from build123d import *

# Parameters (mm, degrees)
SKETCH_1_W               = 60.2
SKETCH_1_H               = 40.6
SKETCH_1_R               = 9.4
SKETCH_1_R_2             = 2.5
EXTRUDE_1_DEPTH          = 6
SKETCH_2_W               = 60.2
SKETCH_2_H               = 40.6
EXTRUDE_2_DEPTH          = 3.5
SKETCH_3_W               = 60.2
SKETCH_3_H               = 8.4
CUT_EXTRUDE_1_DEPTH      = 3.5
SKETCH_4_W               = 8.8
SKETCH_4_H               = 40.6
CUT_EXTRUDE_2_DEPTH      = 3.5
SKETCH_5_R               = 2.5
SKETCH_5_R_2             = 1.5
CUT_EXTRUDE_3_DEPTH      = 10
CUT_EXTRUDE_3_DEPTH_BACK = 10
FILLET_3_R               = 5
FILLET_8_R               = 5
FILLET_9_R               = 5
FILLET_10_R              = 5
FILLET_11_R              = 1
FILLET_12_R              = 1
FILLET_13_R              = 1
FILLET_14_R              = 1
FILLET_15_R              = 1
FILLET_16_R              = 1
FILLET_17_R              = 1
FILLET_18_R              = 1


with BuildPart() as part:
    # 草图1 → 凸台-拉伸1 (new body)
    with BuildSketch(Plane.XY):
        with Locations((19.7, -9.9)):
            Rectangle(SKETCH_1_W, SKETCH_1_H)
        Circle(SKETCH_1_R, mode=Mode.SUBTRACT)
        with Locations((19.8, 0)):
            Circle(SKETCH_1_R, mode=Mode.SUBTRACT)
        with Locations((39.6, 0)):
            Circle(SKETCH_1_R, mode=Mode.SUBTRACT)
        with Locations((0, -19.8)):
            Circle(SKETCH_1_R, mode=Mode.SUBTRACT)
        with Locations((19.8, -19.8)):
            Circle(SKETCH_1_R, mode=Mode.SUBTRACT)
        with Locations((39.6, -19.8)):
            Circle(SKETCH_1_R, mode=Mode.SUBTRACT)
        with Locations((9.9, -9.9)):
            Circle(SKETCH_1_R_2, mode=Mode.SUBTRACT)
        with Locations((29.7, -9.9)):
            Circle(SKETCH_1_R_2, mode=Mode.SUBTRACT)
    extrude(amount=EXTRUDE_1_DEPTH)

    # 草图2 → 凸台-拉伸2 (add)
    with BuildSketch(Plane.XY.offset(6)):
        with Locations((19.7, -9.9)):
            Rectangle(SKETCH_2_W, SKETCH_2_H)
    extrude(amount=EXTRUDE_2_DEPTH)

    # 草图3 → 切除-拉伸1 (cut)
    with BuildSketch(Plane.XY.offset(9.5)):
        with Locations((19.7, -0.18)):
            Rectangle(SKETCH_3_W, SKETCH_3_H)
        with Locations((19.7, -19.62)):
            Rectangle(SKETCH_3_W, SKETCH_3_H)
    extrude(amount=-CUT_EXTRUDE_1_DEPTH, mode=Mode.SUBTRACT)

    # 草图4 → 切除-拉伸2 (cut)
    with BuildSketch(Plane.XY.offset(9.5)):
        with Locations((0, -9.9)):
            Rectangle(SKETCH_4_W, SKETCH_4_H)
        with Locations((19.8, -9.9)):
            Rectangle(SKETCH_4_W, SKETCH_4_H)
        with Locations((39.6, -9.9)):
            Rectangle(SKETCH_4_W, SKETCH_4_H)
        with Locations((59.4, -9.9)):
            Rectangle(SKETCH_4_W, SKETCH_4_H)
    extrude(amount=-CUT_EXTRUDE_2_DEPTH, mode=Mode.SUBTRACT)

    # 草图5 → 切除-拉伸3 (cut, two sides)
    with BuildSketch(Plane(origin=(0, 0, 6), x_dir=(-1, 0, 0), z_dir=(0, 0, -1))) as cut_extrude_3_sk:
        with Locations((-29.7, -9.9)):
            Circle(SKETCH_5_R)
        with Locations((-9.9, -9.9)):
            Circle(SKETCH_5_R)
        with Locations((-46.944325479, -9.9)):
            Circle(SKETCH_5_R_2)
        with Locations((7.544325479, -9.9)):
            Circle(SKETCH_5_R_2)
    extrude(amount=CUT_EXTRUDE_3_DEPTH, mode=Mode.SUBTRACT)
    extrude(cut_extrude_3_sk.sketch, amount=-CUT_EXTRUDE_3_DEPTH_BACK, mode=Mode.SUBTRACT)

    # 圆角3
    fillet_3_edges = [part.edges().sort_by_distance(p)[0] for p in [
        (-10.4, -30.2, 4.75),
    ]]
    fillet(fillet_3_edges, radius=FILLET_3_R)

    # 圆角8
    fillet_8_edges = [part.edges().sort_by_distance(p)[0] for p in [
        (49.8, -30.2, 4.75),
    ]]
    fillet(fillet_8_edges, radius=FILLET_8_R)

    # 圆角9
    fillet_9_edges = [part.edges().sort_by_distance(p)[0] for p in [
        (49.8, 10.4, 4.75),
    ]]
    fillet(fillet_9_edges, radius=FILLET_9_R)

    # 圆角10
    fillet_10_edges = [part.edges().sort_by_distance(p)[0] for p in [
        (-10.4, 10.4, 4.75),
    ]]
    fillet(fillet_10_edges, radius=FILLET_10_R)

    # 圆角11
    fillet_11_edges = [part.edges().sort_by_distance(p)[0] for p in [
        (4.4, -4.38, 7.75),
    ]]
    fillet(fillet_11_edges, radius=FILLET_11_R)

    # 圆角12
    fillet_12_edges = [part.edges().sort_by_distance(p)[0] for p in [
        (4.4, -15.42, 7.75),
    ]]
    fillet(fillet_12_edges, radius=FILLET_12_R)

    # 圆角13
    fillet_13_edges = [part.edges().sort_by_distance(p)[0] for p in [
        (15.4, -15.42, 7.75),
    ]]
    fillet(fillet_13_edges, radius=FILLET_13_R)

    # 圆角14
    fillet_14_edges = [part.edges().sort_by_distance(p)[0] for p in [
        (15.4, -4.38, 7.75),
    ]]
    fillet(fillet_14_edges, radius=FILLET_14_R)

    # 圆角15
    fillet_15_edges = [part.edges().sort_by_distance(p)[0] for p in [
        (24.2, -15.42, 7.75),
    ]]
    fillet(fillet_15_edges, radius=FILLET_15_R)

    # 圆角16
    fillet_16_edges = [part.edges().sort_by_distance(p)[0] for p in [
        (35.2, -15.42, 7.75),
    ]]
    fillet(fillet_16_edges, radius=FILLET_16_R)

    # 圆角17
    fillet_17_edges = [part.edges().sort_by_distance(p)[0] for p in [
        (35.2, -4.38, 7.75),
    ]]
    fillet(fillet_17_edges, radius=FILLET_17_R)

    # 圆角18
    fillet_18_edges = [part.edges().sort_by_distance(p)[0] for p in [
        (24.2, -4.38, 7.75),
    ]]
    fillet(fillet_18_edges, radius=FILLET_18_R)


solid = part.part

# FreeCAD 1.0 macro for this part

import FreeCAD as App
import Part
import Sketcher

V = App.Vector


def edges_at(feature, points):
    """Names of the edges that pass closest to the given points."""
    edges = feature.Shape.Edges
    near = lambda p: min(range(len(edges)), key=lambda i: edges[i].distToShape(Part.Vertex(*p))[0])
    return sorted({f"Edge{near(p) + 1}" for p in points})

doc = App.newDocument("Part")
body = doc.addObject("PartDesign::Body", "Body")

# Sketch on XY plane
sketch1 = body.newObject("Sketcher::SketchObject", "Sketch")
sketch1.AttachmentSupport = (doc.getObject("XY_Plane"), [""])
sketch1.MapMode = "FlatFace"
sketch1.addGeometry(Part.LineSegment(V(-10.4, 10.4, 0), V(-10.4, -30.2, 0)), False)
sketch1.addGeometry(Part.LineSegment(V(-10.4, -30.2, 0), V(49.8, -30.2, 0)), False)
sketch1.addGeometry(Part.LineSegment(V(49.8, -30.2, 0), V(49.8, 10.4, 0)), False)
sketch1.addGeometry(Part.LineSegment(V(49.8, 10.4, 0), V(-10.4, 10.4, 0)), False)
sketch1.addGeometry(Part.Circle(V(0, -19.8, 0), V(0, 0, 1), 9.4), False)
sketch1.addGeometry(Part.Circle(V(19.8, -19.8, 0), V(0, 0, 1), 9.4), False)
sketch1.addGeometry(Part.Circle(V(39.6, -19.8, 0), V(0, 0, 1), 9.4), False)
sketch1.addGeometry(Part.Circle(V(9.9, -9.9, 0), V(0, 0, 1), 2.5), False)
sketch1.addGeometry(Part.Circle(V(0, 0, 0), V(0, 0, 1), 9.4), False)
sketch1.addGeometry(Part.Circle(V(29.7, -9.9, 0), V(0, 0, 1), 2.5), False)
sketch1.addGeometry(Part.Circle(V(19.8, 0, 0), V(0, 0, 1), 9.4), False)
sketch1.addGeometry(Part.Circle(V(39.6, 0, 0), V(0, 0, 1), 9.4), False)
sketch1.addConstraint(Sketcher.Constraint("Coincident", 0, 2, 1, 1))
sketch1.addConstraint(Sketcher.Constraint("Coincident", 1, 2, 2, 1))
sketch1.addConstraint(Sketcher.Constraint("Coincident", 2, 2, 3, 1))
sketch1.addConstraint(Sketcher.Constraint("Coincident", 3, 2, 0, 1))
sketch1.addConstraint(Sketcher.Constraint("Vertical", 0))
sketch1.addConstraint(Sketcher.Constraint("Horizontal", 1))
sketch1.addConstraint(Sketcher.Constraint("Vertical", 2))
sketch1.addConstraint(Sketcher.Constraint("Horizontal", 3))
sketch1.addConstraint(Sketcher.Constraint("Coincident", 8, 3, -1, 1))
sketch1.addConstraint(Sketcher.Constraint("Equal", 4, 5))
sketch1.addConstraint(Sketcher.Constraint("Equal", 5, 6))
sketch1.addConstraint(Sketcher.Constraint("Equal", 6, 8))
sketch1.addConstraint(Sketcher.Constraint("Equal", 7, 9))
sketch1.addConstraint(Sketcher.Constraint("Equal", 8, 10))
sketch1.addConstraint(Sketcher.Constraint("Equal", 10, 11))
sketch1.addConstraint(Sketcher.Constraint("PointOnObject", 4, 3, -2))
sketch1.addConstraint(Sketcher.Constraint("PointOnObject", 10, 3, -1))
sketch1.addConstraint(Sketcher.Constraint("PointOnObject", 11, 3, -1))
sketch1.addConstraint(Sketcher.Constraint("Horizontal", 4, 3, 5, 3))
sketch1.addConstraint(Sketcher.Constraint("Horizontal", 5, 3, 6, 3))
sketch1.addConstraint(Sketcher.Constraint("Horizontal", 7, 3, 9, 3))
sketch1.addConstraint(Sketcher.Constraint("Vertical", 5, 3, 10, 3))
sketch1.addConstraint(Sketcher.Constraint("Vertical", 6, 3, 11, 3))
sketch1.addConstraint(Sketcher.Constraint("Diameter", 7, 5.0))
sketch1.addConstraint(Sketcher.Constraint("Diameter", 4, 18.8))
sketch1.addConstraint(Sketcher.Constraint("DistanceX", 1, 1, 1, 2, 60.2))
sketch1.addConstraint(Sketcher.Constraint("DistanceY", 0, 2, 0, 1, 40.6))
sketch1.addConstraint(Sketcher.Constraint("DistanceX", 5, 3, 1, 2, 30.0))
sketch1.addConstraint(Sketcher.Constraint("DistanceY", 4, 3, -1, 1, 19.8))
sketch1.addConstraint(Sketcher.Constraint("DistanceX", -1, 1, 5, 3, 19.8))
sketch1.addConstraint(Sketcher.Constraint("DistanceX", -1, 1, 6, 3, 39.6))
sketch1.addConstraint(Sketcher.Constraint("DistanceX", -1, 1, 7, 3, 9.9))
sketch1.addConstraint(Sketcher.Constraint("DistanceY", 7, 3, -1, 1, 9.9))
sketch1.addConstraint(Sketcher.Constraint("DistanceX", -1, 1, 9, 3, 29.7))
sketch1.addConstraint(Sketcher.Constraint("DistanceY", 0, 2, -1, 1, 30.2))
pad1 = body.newObject("PartDesign::Pad", "Pad")
pad1.Profile = sketch1
pad1.Length = 6

# Sketch on XY plane
sketch2 = body.newObject("Sketcher::SketchObject", "Sketch001")
sketch2.AttachmentSupport = (doc.getObject("XY_Plane"), [""])
sketch2.MapMode = "FlatFace"
sketch2.AttachmentOffset = App.Placement(V(0, 0, 6), App.Rotation())
sketch2.addGeometry(Part.LineSegment(V(-10, 10, 0), V(-10, -30, 0)), False)
sketch2.addGeometry(Part.LineSegment(V(-10, -30, 0), V(50, -30, 0)), False)
sketch2.addGeometry(Part.LineSegment(V(50, -30, 0), V(50, 10, 0)), False)
sketch2.addGeometry(Part.LineSegment(V(50, 10, 0), V(-10, 10, 0)), False)
sketch2.addConstraint(Sketcher.Constraint("Coincident", 0, 2, 1, 1))
sketch2.addConstraint(Sketcher.Constraint("Coincident", 1, 2, 2, 1))
sketch2.addConstraint(Sketcher.Constraint("Coincident", 2, 2, 3, 1))
sketch2.addConstraint(Sketcher.Constraint("Coincident", 3, 2, 0, 1))
sketch2.addConstraint(Sketcher.Constraint("Vertical", 0))
sketch2.addConstraint(Sketcher.Constraint("Horizontal", 1))
sketch2.addConstraint(Sketcher.Constraint("Vertical", 2))
sketch2.addConstraint(Sketcher.Constraint("Horizontal", 3))
sketch2.addConstraint(Sketcher.Constraint("DistanceX", 1, 1, 1, 2, 60.2))
sketch2.addConstraint(Sketcher.Constraint("DistanceY", 0, 2, 0, 1, 40.6))
sketch2.addConstraint(Sketcher.Constraint("DistanceX", 0, 2, -1, 1, 10.4))
sketch2.addConstraint(Sketcher.Constraint("DistanceY", 0, 2, -1, 1, 30.2))
pad2 = body.newObject("PartDesign::Pad", "Pad001")
pad2.Profile = sketch2
pad2.Length = 3.5

# Sketch on XY plane
sketch3 = body.newObject("Sketcher::SketchObject", "Sketch002")
sketch3.AttachmentSupport = (doc.getObject("XY_Plane"), [""])
sketch3.MapMode = "FlatFace"
sketch3.AttachmentOffset = App.Placement(V(0, 0, 9.5), App.Rotation())
sketch3.addGeometry(Part.LineSegment(V(-10, 4, 0), V(-10, -4, 0)), False)
sketch3.addGeometry(Part.LineSegment(V(-10, -4, 0), V(50, -4, 0)), False)
sketch3.addGeometry(Part.LineSegment(V(50, -4, 0), V(50, 4, 0)), False)
sketch3.addGeometry(Part.LineSegment(V(50, 4, 0), V(-10, 4, 0)), False)
sketch3.addGeometry(Part.LineSegment(V(-10, -15, 0), V(-10, -24, 0)), False)
sketch3.addGeometry(Part.LineSegment(V(-10, -24, 0), V(50, -24, 0)), False)
sketch3.addGeometry(Part.LineSegment(V(50, -24, 0), V(50, -15, 0)), False)
sketch3.addGeometry(Part.LineSegment(V(50, -15, 0), V(-10, -15, 0)), False)
sketch3.addConstraint(Sketcher.Constraint("Coincident", 0, 2, 1, 1))
sketch3.addConstraint(Sketcher.Constraint("Coincident", 1, 2, 2, 1))
sketch3.addConstraint(Sketcher.Constraint("Coincident", 2, 2, 3, 1))
sketch3.addConstraint(Sketcher.Constraint("Coincident", 3, 2, 0, 1))
sketch3.addConstraint(Sketcher.Constraint("Coincident", 4, 2, 5, 1))
sketch3.addConstraint(Sketcher.Constraint("Coincident", 5, 2, 6, 1))
sketch3.addConstraint(Sketcher.Constraint("Coincident", 6, 2, 7, 1))
sketch3.addConstraint(Sketcher.Constraint("Coincident", 7, 2, 4, 1))
sketch3.addConstraint(Sketcher.Constraint("Vertical", 0))
sketch3.addConstraint(Sketcher.Constraint("Horizontal", 1))
sketch3.addConstraint(Sketcher.Constraint("Vertical", 2))
sketch3.addConstraint(Sketcher.Constraint("Horizontal", 3))
sketch3.addConstraint(Sketcher.Constraint("Vertical", 4))
sketch3.addConstraint(Sketcher.Constraint("Horizontal", 5))
sketch3.addConstraint(Sketcher.Constraint("Vertical", 6))
sketch3.addConstraint(Sketcher.Constraint("Horizontal", 7))
sketch3.addConstraint(Sketcher.Constraint("Vertical", 3, 2, 4, 2))
sketch3.addConstraint(Sketcher.Constraint("Vertical", 2, 2, 5, 2))
sketch3.addConstraint(Sketcher.Constraint("Equal", 2, 4))
sketch3.addConstraint(Sketcher.Constraint("DistanceX", 1, 1, 1, 2, 60.2))
sketch3.addConstraint(Sketcher.Constraint("DistanceY", 0, 2, 0, 1, 8.4))
sketch3.addConstraint(Sketcher.Constraint("DistanceX", 0, 2, -1, 1, 10.4))
sketch3.addConstraint(Sketcher.Constraint("DistanceY", 0, 2, -1, 1, 4.38))
sketch3.addConstraint(Sketcher.Constraint("DistanceY", 4, 2, -1, 1, 23.82))
pocket1 = body.newObject("PartDesign::Pocket", "Pocket")
pocket1.Profile = sketch3
pocket1.Length = 3.5

# Sketch on XY plane
sketch4 = body.newObject("Sketcher::SketchObject", "Sketch003")
sketch4.AttachmentSupport = (doc.getObject("XY_Plane"), [""])
sketch4.MapMode = "FlatFace"
sketch4.AttachmentOffset = App.Placement(V(0, 0, 9.5), App.Rotation())
sketch4.addGeometry(Part.LineSegment(V(-4, 10, 0), V(-4, -30, 0)), False)
sketch4.addGeometry(Part.LineSegment(V(-4, -30, 0), V(4, -30, 0)), False)
sketch4.addGeometry(Part.LineSegment(V(4, -30, 0), V(4, 10, 0)), False)
sketch4.addGeometry(Part.LineSegment(V(4, 10, 0), V(-4, 10, 0)), False)
sketch4.addGeometry(Part.LineSegment(V(15, 10, 0), V(15, -30, 0)), False)
sketch4.addGeometry(Part.LineSegment(V(15, -30, 0), V(24, -30, 0)), False)
sketch4.addGeometry(Part.LineSegment(V(24, -30, 0), V(24, 10, 0)), False)
sketch4.addGeometry(Part.LineSegment(V(24, 10, 0), V(15, 10, 0)), False)
sketch4.addGeometry(Part.LineSegment(V(35, 10, 0), V(35, -30, 0)), False)
sketch4.addGeometry(Part.LineSegment(V(35, -30, 0), V(44, -30, 0)), False)
sketch4.addGeometry(Part.LineSegment(V(44, -30, 0), V(44, 10, 0)), False)
sketch4.addGeometry(Part.LineSegment(V(44, 10, 0), V(35, 10, 0)), False)
sketch4.addGeometry(Part.LineSegment(V(55, 10, 0), V(55, -30, 0)), False)
sketch4.addGeometry(Part.LineSegment(V(55, -30, 0), V(64, -30, 0)), False)
sketch4.addGeometry(Part.LineSegment(V(64, -30, 0), V(64, 10, 0)), False)
sketch4.addGeometry(Part.LineSegment(V(64, 10, 0), V(55, 10, 0)), False)
sketch4.addConstraint(Sketcher.Constraint("Coincident", 0, 2, 1, 1))
sketch4.addConstraint(Sketcher.Constraint("Coincident", 1, 2, 2, 1))
sketch4.addConstraint(Sketcher.Constraint("Coincident", 2, 2, 3, 1))
sketch4.addConstraint(Sketcher.Constraint("Coincident", 3, 2, 0, 1))
sketch4.addConstraint(Sketcher.Constraint("Coincident", 4, 2, 5, 1))
sketch4.addConstraint(Sketcher.Constraint("Coincident", 5, 2, 6, 1))
sketch4.addConstraint(Sketcher.Constraint("Coincident", 6, 2, 7, 1))
sketch4.addConstraint(Sketcher.Constraint("Coincident", 7, 2, 4, 1))
sketch4.addConstraint(Sketcher.Constraint("Coincident", 8, 2, 9, 1))
sketch4.addConstraint(Sketcher.Constraint("Coincident", 9, 2, 10, 1))
sketch4.addConstraint(Sketcher.Constraint("Coincident", 10, 2, 11, 1))
sketch4.addConstraint(Sketcher.Constraint("Coincident", 11, 2, 8, 1))
sketch4.addConstraint(Sketcher.Constraint("Coincident", 12, 2, 13, 1))
sketch4.addConstraint(Sketcher.Constraint("Coincident", 13, 2, 14, 1))
sketch4.addConstraint(Sketcher.Constraint("Coincident", 14, 2, 15, 1))
sketch4.addConstraint(Sketcher.Constraint("Coincident", 15, 2, 12, 1))
sketch4.addConstraint(Sketcher.Constraint("Vertical", 0))
sketch4.addConstraint(Sketcher.Constraint("Horizontal", 1))
sketch4.addConstraint(Sketcher.Constraint("Vertical", 2))
sketch4.addConstraint(Sketcher.Constraint("Horizontal", 3))
sketch4.addConstraint(Sketcher.Constraint("Vertical", 4))
sketch4.addConstraint(Sketcher.Constraint("Horizontal", 5))
sketch4.addConstraint(Sketcher.Constraint("Vertical", 6))
sketch4.addConstraint(Sketcher.Constraint("Horizontal", 7))
sketch4.addConstraint(Sketcher.Constraint("Vertical", 8))
sketch4.addConstraint(Sketcher.Constraint("Horizontal", 9))
sketch4.addConstraint(Sketcher.Constraint("Vertical", 10))
sketch4.addConstraint(Sketcher.Constraint("Horizontal", 11))
sketch4.addConstraint(Sketcher.Constraint("Vertical", 12))
sketch4.addConstraint(Sketcher.Constraint("Horizontal", 13))
sketch4.addConstraint(Sketcher.Constraint("Vertical", 14))
sketch4.addConstraint(Sketcher.Constraint("Horizontal", 15))
sketch4.addConstraint(Sketcher.Constraint("Horizontal", 1, 2, 4, 2))
sketch4.addConstraint(Sketcher.Constraint("Horizontal", 3, 2, 6, 2))
sketch4.addConstraint(Sketcher.Constraint("Horizontal", 5, 2, 8, 2))
sketch4.addConstraint(Sketcher.Constraint("Horizontal", 7, 2, 10, 2))
sketch4.addConstraint(Sketcher.Constraint("Horizontal", 9, 2, 12, 2))
sketch4.addConstraint(Sketcher.Constraint("Horizontal", 11, 2, 14, 2))
sketch4.addConstraint(Sketcher.Constraint("Equal", 3, 5))
sketch4.addConstraint(Sketcher.Constraint("Equal", 7, 9))
sketch4.addConstraint(Sketcher.Constraint("Equal", 11, 13))
sketch4.addConstraint(Sketcher.Constraint("DistanceX", 1, 1, 1, 2, 8.8))
sketch4.addConstraint(Sketcher.Constraint("DistanceY", 0, 2, 0, 1, 40.6))
sketch4.addConstraint(Sketcher.Constraint("DistanceX", -1, 1, 9, 2, 44.0))
sketch4.addConstraint(Sketcher.Constraint("DistanceX", -1, 1, 12, 2, 55.0))
sketch4.addConstraint(Sketcher.Constraint("DistanceX", 1, 2, 4, 2, 11.0))
sketch4.addConstraint(Sketcher.Constraint("DistanceX", 5, 2, 8, 2, 11.0))
sketch4.addConstraint(Sketcher.Constraint("DistanceY", 0, 2, -1, 1, 30.2))
pocket2 = body.newObject("PartDesign::Pocket", "Pocket001")
pocket2.Profile = sketch4
pocket2.Length = 3.5

# Sketch on XY plane
sketch5 = body.newObject("Sketcher::SketchObject", "Sketch004")
sketch5.AttachmentSupport = (doc.getObject("XY_Plane"), [""])
sketch5.MapMode = "FlatFace"
sketch5.AttachmentOffset = App.Placement(V(0, 0, 6), App.Rotation())
sketch5.addGeometry(Part.Circle(V(29.7, -9.9, 0), V(0, 0, 1), 2.5), False)
sketch5.addGeometry(Part.Circle(V(9.9, -9.9, 0), V(0, 0, 1), 2.5), False)
sketch5.addGeometry(Part.Circle(V(46.9, -9.9, 0), V(0, 0, 1), 1.5), False)
sketch5.addGeometry(Part.Circle(V(-7.5, -9.9, 0), V(0, 0, 1), 1.5), False)
sketch5.addConstraint(Sketcher.Constraint("Equal", 0, 1))
sketch5.addConstraint(Sketcher.Constraint("Equal", 2, 3))
sketch5.addConstraint(Sketcher.Constraint("Horizontal", 0, 3, 1, 3))
sketch5.addConstraint(Sketcher.Constraint("Horizontal", 1, 3, 2, 3))
sketch5.addConstraint(Sketcher.Constraint("Horizontal", 2, 3, 3, 3))
sketch5.addConstraint(Sketcher.Constraint("Diameter", 0, 5.0))
sketch5.addConstraint(Sketcher.Constraint("Diameter", 2, 3.0))
sketch5.addConstraint(Sketcher.Constraint("DistanceX", -1, 1, 0, 3, 29.7))
sketch5.addConstraint(Sketcher.Constraint("DistanceY", 0, 3, -1, 1, 9.9))
sketch5.addConstraint(Sketcher.Constraint("DistanceX", -1, 1, 1, 3, 9.9))
sketch5.addConstraint(Sketcher.Constraint("DistanceX", 3, 3, 2, 3, 54.488651))
sketch5.addConstraint(Sketcher.Constraint("DistanceX", -1, 1, 2, 3, 46.944325))
pocket3 = body.newObject("PartDesign::Pocket", "Pocket002")
pocket3.Profile = sketch5
pocket3.Type = "ThroughAll"
pocket3.Midplane = True
doc.recompute()

fillet = body.newObject("PartDesign::Fillet", "Fillet")
fillet.Base = (pocket3, edges_at(pocket3, [(-10.4, -30.2, 4.75)]))
fillet.Radius = 5
doc.recompute()

fillet2 = body.newObject("PartDesign::Fillet", "Fillet001")
fillet2.Base = (fillet, edges_at(fillet, [(49.8, -30.2, 4.75)]))
fillet2.Radius = 5
doc.recompute()

fillet3 = body.newObject("PartDesign::Fillet", "Fillet002")
fillet3.Base = (fillet2, edges_at(fillet2, [(49.8, 10.4, 4.75)]))
fillet3.Radius = 5
doc.recompute()

fillet4 = body.newObject("PartDesign::Fillet", "Fillet003")
fillet4.Base = (fillet3, edges_at(fillet3, [(-10.4, 10.4, 4.75)]))
fillet4.Radius = 5
doc.recompute()

fillet5 = body.newObject("PartDesign::Fillet", "Fillet004")
fillet5.Base = (fillet4, edges_at(fillet4, [(4.4, -4.38, 7.75)]))
fillet5.Radius = 1
doc.recompute()

fillet6 = body.newObject("PartDesign::Fillet", "Fillet005")
fillet6.Base = (fillet5, edges_at(fillet5, [(4.4, -15.42, 7.75)]))
fillet6.Radius = 1
doc.recompute()

fillet7 = body.newObject("PartDesign::Fillet", "Fillet006")
fillet7.Base = (fillet6, edges_at(fillet6, [(15.4, -15.42, 7.75)]))
fillet7.Radius = 1
doc.recompute()

fillet8 = body.newObject("PartDesign::Fillet", "Fillet007")
fillet8.Base = (fillet7, edges_at(fillet7, [(15.4, -4.38, 7.75)]))
fillet8.Radius = 1
doc.recompute()

fillet9 = body.newObject("PartDesign::Fillet", "Fillet008")
fillet9.Base = (fillet8, edges_at(fillet8, [(24.2, -15.42, 7.75)]))
fillet9.Radius = 1
doc.recompute()

fillet10 = body.newObject("PartDesign::Fillet", "Fillet009")
fillet10.Base = (fillet9, edges_at(fillet9, [(35.2, -15.42, 7.75)]))
fillet10.Radius = 1
doc.recompute()

fillet11 = body.newObject("PartDesign::Fillet", "Fillet010")
fillet11.Base = (fillet10, edges_at(fillet10, [(35.2, -4.38, 7.75)]))
fillet11.Radius = 1
doc.recompute()

fillet12 = body.newObject("PartDesign::Fillet", "Fillet011")
fillet12.Base = (fillet11, edges_at(fillet11, [(24.2, -4.38, 7.75)]))
fillet12.Radius = 1

doc.recompute()
